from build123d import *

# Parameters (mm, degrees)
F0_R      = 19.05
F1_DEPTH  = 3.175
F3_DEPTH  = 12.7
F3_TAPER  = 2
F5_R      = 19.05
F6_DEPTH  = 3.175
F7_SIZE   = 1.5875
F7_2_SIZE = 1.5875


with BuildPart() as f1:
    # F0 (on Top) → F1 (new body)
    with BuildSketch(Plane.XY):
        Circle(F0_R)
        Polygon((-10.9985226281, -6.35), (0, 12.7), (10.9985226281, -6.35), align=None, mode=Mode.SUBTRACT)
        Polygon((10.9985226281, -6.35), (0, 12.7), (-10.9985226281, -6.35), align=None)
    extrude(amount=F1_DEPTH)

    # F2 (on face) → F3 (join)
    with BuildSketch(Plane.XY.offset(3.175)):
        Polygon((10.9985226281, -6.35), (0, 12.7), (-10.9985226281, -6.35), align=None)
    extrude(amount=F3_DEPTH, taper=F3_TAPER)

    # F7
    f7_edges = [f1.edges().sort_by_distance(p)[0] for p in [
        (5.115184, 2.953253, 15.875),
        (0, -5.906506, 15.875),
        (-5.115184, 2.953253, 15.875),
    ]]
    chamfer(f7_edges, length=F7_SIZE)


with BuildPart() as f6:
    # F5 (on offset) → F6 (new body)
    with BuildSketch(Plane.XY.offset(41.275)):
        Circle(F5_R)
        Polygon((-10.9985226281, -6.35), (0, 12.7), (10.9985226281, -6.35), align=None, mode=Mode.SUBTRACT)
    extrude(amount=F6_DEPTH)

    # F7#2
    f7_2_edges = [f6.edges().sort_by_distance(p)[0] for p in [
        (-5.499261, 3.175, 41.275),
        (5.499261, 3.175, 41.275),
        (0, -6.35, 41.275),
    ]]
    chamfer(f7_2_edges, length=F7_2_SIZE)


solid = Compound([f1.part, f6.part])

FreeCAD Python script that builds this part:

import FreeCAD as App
import Part
import Sketcher
Q = App.Units.Quantity


def edges_at(feature, points):
    """Names of the edges that pass closest to the given points."""
    edges = feature.Shape.Edges
    near = lambda p: min(range(len(edges)), key=lambda i: edges[i].distToShape(Part.Vertex(*p))[0])
    return sorted({f"Edge{near(p) + 1}" for p in points})


def add_polygon(sketch, points):
    """Adds a closed chain of lines whose ends are joined by coincident constraints."""
    first, n = sketch.GeometryCount, len(points)
    for a, b in zip(points, points[1:] + points[:1]):
        sketch.addGeometry(Part.LineSegment(App.Vector(*a, 0), App.Vector(*b, 0)), False)
    for i in range(n):
        sketch.addConstraint(Sketcher.Constraint("Coincident", first + i, 2, first + (i + 1) % n, 1))

doc = App.newDocument("Part")
body = doc.addObject("PartDesign::Body", "Body")

sketch1 = doc.addObject("Sketcher::SketchObject", "Sketch")
body.addObject(sketch1)
sketch1.AttachmentSupport = (doc.XY_Plane, [""])
sketch1.MapMode = "FlatFace"
sketch1.addGeometry(Part.Circle(App.Vector(0, 0, 0), App.Vector(0, 0, 1), 19), False)
sketch1.addConstraint([
    Sketcher.Constraint("Coincident", 0, 3, -1, 1),
    Sketcher.Constraint("Diameter", 0, Q("1.5 in")),
])
pad1 = doc.addObject("PartDesign::Pad", "Pad")
body.addObject(pad1)
pad1.Profile = sketch1
pad1.Length = Q("0.125 in")

sketch2 = doc.addObject("Sketcher::SketchObject", "Sketch001")
body.addObject(sketch2)
sketch2.AttachmentSupport = (doc.XY_Plane, [""])
sketch2.MapMode = "FlatFace"
sketch2.AttachmentOffset = App.Placement(App.Vector(0, 0, 0.125 * 25.4), App.Rotation())
add_polygon(sketch2, [(11, -6), (0, 13), (-11, -6)])
sketch2.addConstraint([
    Sketcher.Constraint("Horizontal", 2),
    Sketcher.Constraint("PointOnObject", 0, 2, -2),
    Sketcher.Constraint("Equal", 0, 1),
    Sketcher.Constraint("Angle", 0, Q("120 deg")),
    Sketcher.Constraint("DistanceY", -1, 1, 0, 2, Q("0.5 in")),
    Sketcher.Constraint("DistanceY", 1, 2, -1, 1, Q("0.25 in")),
])
pad2 = doc.addObject("PartDesign::Pad", "Pad001")
body.addObject(pad2)
pad2.Profile = sketch2
pad2.Length = Q("0.5 in")
pad2.TaperAngle = -2
doc.recompute()

chamfer = doc.addObject("PartDesign::Chamfer", "Chamfer")
body.addObject(chamfer)
chamfer.Base = (pad2, edges_at(pad2, [(5.115, 2.953, 15.875), (0, -5.907, 15.875), (-5.115, 2.953, 15.875)]))
chamfer.Size = Q("0.0625 in")
body2 = doc.addObject("PartDesign::Body", "Body001")

sketch3 = doc.addObject("Sketcher::SketchObject", "Sketch002")
body2.addObject(sketch3)
sketch3.AttachmentSupport = (doc.getObject("XY_Plane001"), [""])
sketch3.MapMode = "FlatFace"
sketch3.AttachmentOffset = App.Placement(App.Vector(0, 0, 1.625 * 25.4), App.Rotation())
sketch3.addGeometry(Part.Circle(App.Vector(0, 0, 0), App.Vector(0, 0, 1), 19), False)
add_polygon(sketch3, [(11, -6), (-11, -6), (0, 13)])
sketch3.addConstraint([
    Sketcher.Constraint("Horizontal", 1),
    Sketcher.Constraint("Coincident", 0, 3, -1, 1),
    Sketcher.Constraint("PointOnObject", 2, 2, -2),
    Sketcher.Constraint("Equal", 2, 3),
    Sketcher.Constraint("Diameter", 0, Q("1.5 in")),
    Sketcher.Constraint("Angle", 2, Q("60 deg")),
    Sketcher.Constraint("DistanceY", -1, 1, 2, 2, Q("0.5 in")),
    Sketcher.Constraint("DistanceY", 1, 2, -1, 1, Q("0.25 in")),
])
pad3 = doc.addObject("PartDesign::Pad", "Pad002")
body2.addObject(pad3)
pad3.Profile = sketch3
pad3.Length = Q("0.125 in")
doc.recompute()

chamfer2 = doc.addObject("PartDesign::Chamfer", "Chamfer001")
body2.addObject(chamfer2)
chamfer2.Base = (pad3, edges_at(pad3, [(-5.499, 3.175, 41.275), (5.499, 3.175, 41.275), (0, -6.35, 41.275)]))
chamfer2.Size = Q("0.0625 in")

doc.recompute()
